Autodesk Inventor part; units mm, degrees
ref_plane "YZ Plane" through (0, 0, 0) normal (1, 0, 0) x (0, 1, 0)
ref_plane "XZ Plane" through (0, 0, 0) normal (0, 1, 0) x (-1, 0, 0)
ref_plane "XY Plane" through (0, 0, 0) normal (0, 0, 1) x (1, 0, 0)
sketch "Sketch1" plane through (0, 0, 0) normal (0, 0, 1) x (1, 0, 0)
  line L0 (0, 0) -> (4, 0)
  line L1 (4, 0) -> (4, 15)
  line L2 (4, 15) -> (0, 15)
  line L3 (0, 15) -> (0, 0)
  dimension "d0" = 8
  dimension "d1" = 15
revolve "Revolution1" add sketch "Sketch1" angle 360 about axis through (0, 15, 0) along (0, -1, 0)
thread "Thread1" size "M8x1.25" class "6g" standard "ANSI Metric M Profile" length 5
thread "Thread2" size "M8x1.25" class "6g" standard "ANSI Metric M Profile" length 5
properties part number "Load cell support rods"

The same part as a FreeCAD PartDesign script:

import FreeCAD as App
import Part
import Sketcher
from FreeCAD import Vector

doc = App.newDocument("Part")
params = doc.addObject("Spreadsheet::Sheet", "Params")
for row, (alias, value) in enumerate([
    ("sketch1_height", "15 mm"),
    ("sketch1_width", "4 mm"),
    ("revolution_angle", "360 deg"),
], start=1):
    params.set(f"A{row}", alias)
    params.set(f"B{row}", "=" + value)
    params.setAlias(f"B{row}", alias)

body = doc.addObject("PartDesign::Body", "Body")

# Sketch on XY plane
sketch1 = doc.addObject("Sketcher::SketchObject", "Sketch")
body.addObject(sketch1)
sketch1.AttachmentSupport = (doc.XY_Plane, [""])
sketch1.MapMode = "FlatFace"
sketch1.addGeometry(Part.LineSegment(Vector(0, 15, 0), Vector(0, 0, 0)), False)
sketch1.addGeometry(Part.LineSegment(Vector(0, 0, 0), Vector(4, 0, 0)), False)
sketch1.addGeometry(Part.LineSegment(Vector(4, 0, 0), Vector(4, 15, 0)), False)
sketch1.addGeometry(Part.LineSegment(Vector(4, 15, 0), Vector(0, 15, 0)), False)
sketch1.addConstraint(Sketcher.Constraint("Coincident", 0, 2, 1, 1))
sketch1.addConstraint(Sketcher.Constraint("Coincident", 1, 2, 2, 1))
sketch1.addConstraint(Sketcher.Constraint("Coincident", 2, 2, 3, 1))
sketch1.addConstraint(Sketcher.Constraint("Coincident", 3, 2, 0, 1))
sketch1.addConstraint(Sketcher.Constraint("Vertical", 0))
sketch1.addConstraint(Sketcher.Constraint("Horizontal", 1))
sketch1.addConstraint(Sketcher.Constraint("Vertical", 2))
sketch1.addConstraint(Sketcher.Constraint("Horizontal", 3))
sketch1.addConstraint(Sketcher.Constraint("Coincident", 0, 2, -1, 1))
sketch1.addConstraint(Sketcher.Constraint("DistanceY", 0, 2, 0, 1, 15.0))
sketch1.addConstraint(Sketcher.Constraint("DistanceX", 1, 1, 1, 2, 4.0))
sketch1.setExpression("Constraints[9]", "Params.sketch1_height")
sketch1.setExpression("Constraints[10]", "Params.sketch1_width")
revolution = doc.addObject("PartDesign::Revolution", "Revolution")
body.addObject(revolution)
revolution.Profile = sketch1
revolution.ReferenceAxis = (sketch1, ["V_Axis"])
revolution.setExpression("Angle", "Params.revolution_angle")

doc.recompute()
